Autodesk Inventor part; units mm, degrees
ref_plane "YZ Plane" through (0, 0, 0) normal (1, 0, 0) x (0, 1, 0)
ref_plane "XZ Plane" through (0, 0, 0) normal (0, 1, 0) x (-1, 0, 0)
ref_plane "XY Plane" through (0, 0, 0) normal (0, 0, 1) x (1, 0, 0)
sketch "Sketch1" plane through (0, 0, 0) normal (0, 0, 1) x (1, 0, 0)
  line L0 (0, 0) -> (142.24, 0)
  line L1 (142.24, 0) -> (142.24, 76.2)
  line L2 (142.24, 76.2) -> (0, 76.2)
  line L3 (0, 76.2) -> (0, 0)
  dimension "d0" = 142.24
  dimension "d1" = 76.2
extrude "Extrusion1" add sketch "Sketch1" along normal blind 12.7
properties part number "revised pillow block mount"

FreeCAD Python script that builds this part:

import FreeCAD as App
import Part
import Sketcher

V = App.Vector
Q = App.Units.Quantity

doc = App.newDocument("Part")
body = doc.addObject("PartDesign::Body", "Body")

# Sketch on XY plane
sketch1 = doc.addObject("Sketcher::SketchObject", "Sketch")
body.addObject(sketch1)
sketch1.AttachmentSupport = (doc.XY_Plane, [""])
sketch1.MapMode = "FlatFace"
sketch1.addGeometry(Part.LineSegment(V(0, 76, 0), V(0, 0, 0)), False)
sketch1.addGeometry(Part.LineSegment(V(0, 0, 0), V(142, 0, 0)), False)
sketch1.addGeometry(Part.LineSegment(V(142, 0, 0), V(142, 76, 0)), False)
sketch1.addGeometry(Part.LineSegment(V(142, 76, 0), V(0, 76, 0)), False)
sketch1.addConstraint(Sketcher.Constraint("Coincident", 0, 2, 1, 1))
sketch1.addConstraint(Sketcher.Constraint("Coincident", 1, 2, 2, 1))
sketch1.addConstraint(Sketcher.Constraint("Coincident", 2, 2, 3, 1))
sketch1.addConstraint(Sketcher.Constraint("Coincident", 3, 2, 0, 1))
sketch1.addConstraint(Sketcher.Constraint("Vertical", 0))
sketch1.addConstraint(Sketcher.Constraint("Horizontal", 1))
sketch1.addConstraint(Sketcher.Constraint("Vertical", 2))
sketch1.addConstraint(Sketcher.Constraint("Horizontal", 3))
sketch1.addConstraint(Sketcher.Constraint("Coincident", 0, 2, -1, 1))
sketch1.addConstraint(Sketcher.Constraint("DistanceY", 0, 2, 0, 1, Q("3 in")))
sketch1.addConstraint(Sketcher.Constraint("DistanceX", 1, 1, 1, 2, Q("5.6 in")))
pad1 = doc.addObject("PartDesign::Pad", "Pad")
body.addObject(pad1)
pad1.Profile = sketch1
pad1.Length = Q("0.5 in")

doc.recompute()
